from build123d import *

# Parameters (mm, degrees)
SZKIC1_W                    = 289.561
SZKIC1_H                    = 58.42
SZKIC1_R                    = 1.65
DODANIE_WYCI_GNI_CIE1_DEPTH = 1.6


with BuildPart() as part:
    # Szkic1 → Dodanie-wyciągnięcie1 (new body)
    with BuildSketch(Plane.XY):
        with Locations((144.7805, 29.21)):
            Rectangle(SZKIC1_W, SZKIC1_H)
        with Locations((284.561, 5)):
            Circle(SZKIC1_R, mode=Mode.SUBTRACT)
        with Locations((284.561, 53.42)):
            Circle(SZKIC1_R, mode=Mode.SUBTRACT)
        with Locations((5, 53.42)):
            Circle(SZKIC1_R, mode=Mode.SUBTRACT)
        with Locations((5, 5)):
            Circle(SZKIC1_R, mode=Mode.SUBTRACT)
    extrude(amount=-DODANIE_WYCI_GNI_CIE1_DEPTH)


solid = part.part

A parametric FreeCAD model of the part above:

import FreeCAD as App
import Part
import Sketcher
from FreeCAD import Vector


def add_polygon(sketch, points):
    """Adds a closed chain of lines whose ends are joined by coincident constraints."""
    first, n = sketch.GeometryCount, len(points)
    for a, b in zip(points, points[1:] + points[:1]):
        sketch.addGeometry(Part.LineSegment(App.Vector(*a, 0), App.Vector(*b, 0)), False)
    for i in range(n):
        sketch.addConstraint(Sketcher.Constraint("Coincident", first + i, 2, first + (i + 1) % n, 1))

doc = App.newDocument("Part")
body = doc.addObject("PartDesign::Body", "Body")

# Sketch on XY plane
sketch1 = body.newObject("Sketcher::SketchObject", "Sketch")
sketch1.AttachmentSupport = (doc.getObject("XY_Plane"), [""])
sketch1.MapMode = "FlatFace"
add_polygon(sketch1, [(0, 58.42), (0, 0), (289.561, 0), (289.561, 58.42)])  # lines 0-3
sketch1.addGeometry(Part.Circle(Vector(5, 5, 0), Vector(0, 0, 1), 1.65), False)  # 4
sketch1.addGeometry(Part.Circle(Vector(284.561, 5, 0), Vector(0, 0, 1), 1.65), False)  # 5
sketch1.addGeometry(Part.Circle(Vector(5, 53.42, 0), Vector(0, 0, 1), 1.65), False)  # 6
sketch1.addGeometry(Part.Circle(Vector(284.561, 53.42, 0), Vector(0, 0, 1), 1.65), False)  # 7
sketch1.addConstraint([
    Sketcher.Constraint("Vertical", 0),
    Sketcher.Constraint("Horizontal", 1),
    Sketcher.Constraint("Vertical", 2),
    Sketcher.Constraint("Horizontal", 3),
    Sketcher.Constraint("Coincident", 0, 2, -1, 1),
    Sketcher.Constraint("Equal", 4, 5),
    Sketcher.Constraint("Equal", 5, 6),
    Sketcher.Constraint("Equal", 6, 7),
    Sketcher.Constraint("Horizontal", 4, 3, 5, 3),
    Sketcher.Constraint("Horizontal", 6, 3, 7, 3),
    Sketcher.Constraint("Vertical", 4, 3, 6, 3),
    Sketcher.Constraint("Vertical", 5, 3, 7, 3),
    Sketcher.Constraint("Diameter", 4, 3.3),
    Sketcher.Constraint("DistanceX", -1, 1, 4, 3, 5.0),
    Sketcher.Constraint("DistanceY", -1, 1, 4, 3, 5.0),
    Sketcher.Constraint("DistanceX", 5, 3, 1, 2, 5.0),
    Sketcher.Constraint("DistanceY", 7, 3, 2, 2, 5.0),
    Sketcher.Constraint("DistanceY", 0, 2, 0, 1, 58.42),
    Sketcher.Constraint("DistanceX", 1, 1, 1, 2, 289.561),
])
pad1 = body.newObject("PartDesign::Pad", "Pad")
pad1.Profile = sketch1
pad1.Length = 1.6
pad1.Reversed = True

doc.recompute()
